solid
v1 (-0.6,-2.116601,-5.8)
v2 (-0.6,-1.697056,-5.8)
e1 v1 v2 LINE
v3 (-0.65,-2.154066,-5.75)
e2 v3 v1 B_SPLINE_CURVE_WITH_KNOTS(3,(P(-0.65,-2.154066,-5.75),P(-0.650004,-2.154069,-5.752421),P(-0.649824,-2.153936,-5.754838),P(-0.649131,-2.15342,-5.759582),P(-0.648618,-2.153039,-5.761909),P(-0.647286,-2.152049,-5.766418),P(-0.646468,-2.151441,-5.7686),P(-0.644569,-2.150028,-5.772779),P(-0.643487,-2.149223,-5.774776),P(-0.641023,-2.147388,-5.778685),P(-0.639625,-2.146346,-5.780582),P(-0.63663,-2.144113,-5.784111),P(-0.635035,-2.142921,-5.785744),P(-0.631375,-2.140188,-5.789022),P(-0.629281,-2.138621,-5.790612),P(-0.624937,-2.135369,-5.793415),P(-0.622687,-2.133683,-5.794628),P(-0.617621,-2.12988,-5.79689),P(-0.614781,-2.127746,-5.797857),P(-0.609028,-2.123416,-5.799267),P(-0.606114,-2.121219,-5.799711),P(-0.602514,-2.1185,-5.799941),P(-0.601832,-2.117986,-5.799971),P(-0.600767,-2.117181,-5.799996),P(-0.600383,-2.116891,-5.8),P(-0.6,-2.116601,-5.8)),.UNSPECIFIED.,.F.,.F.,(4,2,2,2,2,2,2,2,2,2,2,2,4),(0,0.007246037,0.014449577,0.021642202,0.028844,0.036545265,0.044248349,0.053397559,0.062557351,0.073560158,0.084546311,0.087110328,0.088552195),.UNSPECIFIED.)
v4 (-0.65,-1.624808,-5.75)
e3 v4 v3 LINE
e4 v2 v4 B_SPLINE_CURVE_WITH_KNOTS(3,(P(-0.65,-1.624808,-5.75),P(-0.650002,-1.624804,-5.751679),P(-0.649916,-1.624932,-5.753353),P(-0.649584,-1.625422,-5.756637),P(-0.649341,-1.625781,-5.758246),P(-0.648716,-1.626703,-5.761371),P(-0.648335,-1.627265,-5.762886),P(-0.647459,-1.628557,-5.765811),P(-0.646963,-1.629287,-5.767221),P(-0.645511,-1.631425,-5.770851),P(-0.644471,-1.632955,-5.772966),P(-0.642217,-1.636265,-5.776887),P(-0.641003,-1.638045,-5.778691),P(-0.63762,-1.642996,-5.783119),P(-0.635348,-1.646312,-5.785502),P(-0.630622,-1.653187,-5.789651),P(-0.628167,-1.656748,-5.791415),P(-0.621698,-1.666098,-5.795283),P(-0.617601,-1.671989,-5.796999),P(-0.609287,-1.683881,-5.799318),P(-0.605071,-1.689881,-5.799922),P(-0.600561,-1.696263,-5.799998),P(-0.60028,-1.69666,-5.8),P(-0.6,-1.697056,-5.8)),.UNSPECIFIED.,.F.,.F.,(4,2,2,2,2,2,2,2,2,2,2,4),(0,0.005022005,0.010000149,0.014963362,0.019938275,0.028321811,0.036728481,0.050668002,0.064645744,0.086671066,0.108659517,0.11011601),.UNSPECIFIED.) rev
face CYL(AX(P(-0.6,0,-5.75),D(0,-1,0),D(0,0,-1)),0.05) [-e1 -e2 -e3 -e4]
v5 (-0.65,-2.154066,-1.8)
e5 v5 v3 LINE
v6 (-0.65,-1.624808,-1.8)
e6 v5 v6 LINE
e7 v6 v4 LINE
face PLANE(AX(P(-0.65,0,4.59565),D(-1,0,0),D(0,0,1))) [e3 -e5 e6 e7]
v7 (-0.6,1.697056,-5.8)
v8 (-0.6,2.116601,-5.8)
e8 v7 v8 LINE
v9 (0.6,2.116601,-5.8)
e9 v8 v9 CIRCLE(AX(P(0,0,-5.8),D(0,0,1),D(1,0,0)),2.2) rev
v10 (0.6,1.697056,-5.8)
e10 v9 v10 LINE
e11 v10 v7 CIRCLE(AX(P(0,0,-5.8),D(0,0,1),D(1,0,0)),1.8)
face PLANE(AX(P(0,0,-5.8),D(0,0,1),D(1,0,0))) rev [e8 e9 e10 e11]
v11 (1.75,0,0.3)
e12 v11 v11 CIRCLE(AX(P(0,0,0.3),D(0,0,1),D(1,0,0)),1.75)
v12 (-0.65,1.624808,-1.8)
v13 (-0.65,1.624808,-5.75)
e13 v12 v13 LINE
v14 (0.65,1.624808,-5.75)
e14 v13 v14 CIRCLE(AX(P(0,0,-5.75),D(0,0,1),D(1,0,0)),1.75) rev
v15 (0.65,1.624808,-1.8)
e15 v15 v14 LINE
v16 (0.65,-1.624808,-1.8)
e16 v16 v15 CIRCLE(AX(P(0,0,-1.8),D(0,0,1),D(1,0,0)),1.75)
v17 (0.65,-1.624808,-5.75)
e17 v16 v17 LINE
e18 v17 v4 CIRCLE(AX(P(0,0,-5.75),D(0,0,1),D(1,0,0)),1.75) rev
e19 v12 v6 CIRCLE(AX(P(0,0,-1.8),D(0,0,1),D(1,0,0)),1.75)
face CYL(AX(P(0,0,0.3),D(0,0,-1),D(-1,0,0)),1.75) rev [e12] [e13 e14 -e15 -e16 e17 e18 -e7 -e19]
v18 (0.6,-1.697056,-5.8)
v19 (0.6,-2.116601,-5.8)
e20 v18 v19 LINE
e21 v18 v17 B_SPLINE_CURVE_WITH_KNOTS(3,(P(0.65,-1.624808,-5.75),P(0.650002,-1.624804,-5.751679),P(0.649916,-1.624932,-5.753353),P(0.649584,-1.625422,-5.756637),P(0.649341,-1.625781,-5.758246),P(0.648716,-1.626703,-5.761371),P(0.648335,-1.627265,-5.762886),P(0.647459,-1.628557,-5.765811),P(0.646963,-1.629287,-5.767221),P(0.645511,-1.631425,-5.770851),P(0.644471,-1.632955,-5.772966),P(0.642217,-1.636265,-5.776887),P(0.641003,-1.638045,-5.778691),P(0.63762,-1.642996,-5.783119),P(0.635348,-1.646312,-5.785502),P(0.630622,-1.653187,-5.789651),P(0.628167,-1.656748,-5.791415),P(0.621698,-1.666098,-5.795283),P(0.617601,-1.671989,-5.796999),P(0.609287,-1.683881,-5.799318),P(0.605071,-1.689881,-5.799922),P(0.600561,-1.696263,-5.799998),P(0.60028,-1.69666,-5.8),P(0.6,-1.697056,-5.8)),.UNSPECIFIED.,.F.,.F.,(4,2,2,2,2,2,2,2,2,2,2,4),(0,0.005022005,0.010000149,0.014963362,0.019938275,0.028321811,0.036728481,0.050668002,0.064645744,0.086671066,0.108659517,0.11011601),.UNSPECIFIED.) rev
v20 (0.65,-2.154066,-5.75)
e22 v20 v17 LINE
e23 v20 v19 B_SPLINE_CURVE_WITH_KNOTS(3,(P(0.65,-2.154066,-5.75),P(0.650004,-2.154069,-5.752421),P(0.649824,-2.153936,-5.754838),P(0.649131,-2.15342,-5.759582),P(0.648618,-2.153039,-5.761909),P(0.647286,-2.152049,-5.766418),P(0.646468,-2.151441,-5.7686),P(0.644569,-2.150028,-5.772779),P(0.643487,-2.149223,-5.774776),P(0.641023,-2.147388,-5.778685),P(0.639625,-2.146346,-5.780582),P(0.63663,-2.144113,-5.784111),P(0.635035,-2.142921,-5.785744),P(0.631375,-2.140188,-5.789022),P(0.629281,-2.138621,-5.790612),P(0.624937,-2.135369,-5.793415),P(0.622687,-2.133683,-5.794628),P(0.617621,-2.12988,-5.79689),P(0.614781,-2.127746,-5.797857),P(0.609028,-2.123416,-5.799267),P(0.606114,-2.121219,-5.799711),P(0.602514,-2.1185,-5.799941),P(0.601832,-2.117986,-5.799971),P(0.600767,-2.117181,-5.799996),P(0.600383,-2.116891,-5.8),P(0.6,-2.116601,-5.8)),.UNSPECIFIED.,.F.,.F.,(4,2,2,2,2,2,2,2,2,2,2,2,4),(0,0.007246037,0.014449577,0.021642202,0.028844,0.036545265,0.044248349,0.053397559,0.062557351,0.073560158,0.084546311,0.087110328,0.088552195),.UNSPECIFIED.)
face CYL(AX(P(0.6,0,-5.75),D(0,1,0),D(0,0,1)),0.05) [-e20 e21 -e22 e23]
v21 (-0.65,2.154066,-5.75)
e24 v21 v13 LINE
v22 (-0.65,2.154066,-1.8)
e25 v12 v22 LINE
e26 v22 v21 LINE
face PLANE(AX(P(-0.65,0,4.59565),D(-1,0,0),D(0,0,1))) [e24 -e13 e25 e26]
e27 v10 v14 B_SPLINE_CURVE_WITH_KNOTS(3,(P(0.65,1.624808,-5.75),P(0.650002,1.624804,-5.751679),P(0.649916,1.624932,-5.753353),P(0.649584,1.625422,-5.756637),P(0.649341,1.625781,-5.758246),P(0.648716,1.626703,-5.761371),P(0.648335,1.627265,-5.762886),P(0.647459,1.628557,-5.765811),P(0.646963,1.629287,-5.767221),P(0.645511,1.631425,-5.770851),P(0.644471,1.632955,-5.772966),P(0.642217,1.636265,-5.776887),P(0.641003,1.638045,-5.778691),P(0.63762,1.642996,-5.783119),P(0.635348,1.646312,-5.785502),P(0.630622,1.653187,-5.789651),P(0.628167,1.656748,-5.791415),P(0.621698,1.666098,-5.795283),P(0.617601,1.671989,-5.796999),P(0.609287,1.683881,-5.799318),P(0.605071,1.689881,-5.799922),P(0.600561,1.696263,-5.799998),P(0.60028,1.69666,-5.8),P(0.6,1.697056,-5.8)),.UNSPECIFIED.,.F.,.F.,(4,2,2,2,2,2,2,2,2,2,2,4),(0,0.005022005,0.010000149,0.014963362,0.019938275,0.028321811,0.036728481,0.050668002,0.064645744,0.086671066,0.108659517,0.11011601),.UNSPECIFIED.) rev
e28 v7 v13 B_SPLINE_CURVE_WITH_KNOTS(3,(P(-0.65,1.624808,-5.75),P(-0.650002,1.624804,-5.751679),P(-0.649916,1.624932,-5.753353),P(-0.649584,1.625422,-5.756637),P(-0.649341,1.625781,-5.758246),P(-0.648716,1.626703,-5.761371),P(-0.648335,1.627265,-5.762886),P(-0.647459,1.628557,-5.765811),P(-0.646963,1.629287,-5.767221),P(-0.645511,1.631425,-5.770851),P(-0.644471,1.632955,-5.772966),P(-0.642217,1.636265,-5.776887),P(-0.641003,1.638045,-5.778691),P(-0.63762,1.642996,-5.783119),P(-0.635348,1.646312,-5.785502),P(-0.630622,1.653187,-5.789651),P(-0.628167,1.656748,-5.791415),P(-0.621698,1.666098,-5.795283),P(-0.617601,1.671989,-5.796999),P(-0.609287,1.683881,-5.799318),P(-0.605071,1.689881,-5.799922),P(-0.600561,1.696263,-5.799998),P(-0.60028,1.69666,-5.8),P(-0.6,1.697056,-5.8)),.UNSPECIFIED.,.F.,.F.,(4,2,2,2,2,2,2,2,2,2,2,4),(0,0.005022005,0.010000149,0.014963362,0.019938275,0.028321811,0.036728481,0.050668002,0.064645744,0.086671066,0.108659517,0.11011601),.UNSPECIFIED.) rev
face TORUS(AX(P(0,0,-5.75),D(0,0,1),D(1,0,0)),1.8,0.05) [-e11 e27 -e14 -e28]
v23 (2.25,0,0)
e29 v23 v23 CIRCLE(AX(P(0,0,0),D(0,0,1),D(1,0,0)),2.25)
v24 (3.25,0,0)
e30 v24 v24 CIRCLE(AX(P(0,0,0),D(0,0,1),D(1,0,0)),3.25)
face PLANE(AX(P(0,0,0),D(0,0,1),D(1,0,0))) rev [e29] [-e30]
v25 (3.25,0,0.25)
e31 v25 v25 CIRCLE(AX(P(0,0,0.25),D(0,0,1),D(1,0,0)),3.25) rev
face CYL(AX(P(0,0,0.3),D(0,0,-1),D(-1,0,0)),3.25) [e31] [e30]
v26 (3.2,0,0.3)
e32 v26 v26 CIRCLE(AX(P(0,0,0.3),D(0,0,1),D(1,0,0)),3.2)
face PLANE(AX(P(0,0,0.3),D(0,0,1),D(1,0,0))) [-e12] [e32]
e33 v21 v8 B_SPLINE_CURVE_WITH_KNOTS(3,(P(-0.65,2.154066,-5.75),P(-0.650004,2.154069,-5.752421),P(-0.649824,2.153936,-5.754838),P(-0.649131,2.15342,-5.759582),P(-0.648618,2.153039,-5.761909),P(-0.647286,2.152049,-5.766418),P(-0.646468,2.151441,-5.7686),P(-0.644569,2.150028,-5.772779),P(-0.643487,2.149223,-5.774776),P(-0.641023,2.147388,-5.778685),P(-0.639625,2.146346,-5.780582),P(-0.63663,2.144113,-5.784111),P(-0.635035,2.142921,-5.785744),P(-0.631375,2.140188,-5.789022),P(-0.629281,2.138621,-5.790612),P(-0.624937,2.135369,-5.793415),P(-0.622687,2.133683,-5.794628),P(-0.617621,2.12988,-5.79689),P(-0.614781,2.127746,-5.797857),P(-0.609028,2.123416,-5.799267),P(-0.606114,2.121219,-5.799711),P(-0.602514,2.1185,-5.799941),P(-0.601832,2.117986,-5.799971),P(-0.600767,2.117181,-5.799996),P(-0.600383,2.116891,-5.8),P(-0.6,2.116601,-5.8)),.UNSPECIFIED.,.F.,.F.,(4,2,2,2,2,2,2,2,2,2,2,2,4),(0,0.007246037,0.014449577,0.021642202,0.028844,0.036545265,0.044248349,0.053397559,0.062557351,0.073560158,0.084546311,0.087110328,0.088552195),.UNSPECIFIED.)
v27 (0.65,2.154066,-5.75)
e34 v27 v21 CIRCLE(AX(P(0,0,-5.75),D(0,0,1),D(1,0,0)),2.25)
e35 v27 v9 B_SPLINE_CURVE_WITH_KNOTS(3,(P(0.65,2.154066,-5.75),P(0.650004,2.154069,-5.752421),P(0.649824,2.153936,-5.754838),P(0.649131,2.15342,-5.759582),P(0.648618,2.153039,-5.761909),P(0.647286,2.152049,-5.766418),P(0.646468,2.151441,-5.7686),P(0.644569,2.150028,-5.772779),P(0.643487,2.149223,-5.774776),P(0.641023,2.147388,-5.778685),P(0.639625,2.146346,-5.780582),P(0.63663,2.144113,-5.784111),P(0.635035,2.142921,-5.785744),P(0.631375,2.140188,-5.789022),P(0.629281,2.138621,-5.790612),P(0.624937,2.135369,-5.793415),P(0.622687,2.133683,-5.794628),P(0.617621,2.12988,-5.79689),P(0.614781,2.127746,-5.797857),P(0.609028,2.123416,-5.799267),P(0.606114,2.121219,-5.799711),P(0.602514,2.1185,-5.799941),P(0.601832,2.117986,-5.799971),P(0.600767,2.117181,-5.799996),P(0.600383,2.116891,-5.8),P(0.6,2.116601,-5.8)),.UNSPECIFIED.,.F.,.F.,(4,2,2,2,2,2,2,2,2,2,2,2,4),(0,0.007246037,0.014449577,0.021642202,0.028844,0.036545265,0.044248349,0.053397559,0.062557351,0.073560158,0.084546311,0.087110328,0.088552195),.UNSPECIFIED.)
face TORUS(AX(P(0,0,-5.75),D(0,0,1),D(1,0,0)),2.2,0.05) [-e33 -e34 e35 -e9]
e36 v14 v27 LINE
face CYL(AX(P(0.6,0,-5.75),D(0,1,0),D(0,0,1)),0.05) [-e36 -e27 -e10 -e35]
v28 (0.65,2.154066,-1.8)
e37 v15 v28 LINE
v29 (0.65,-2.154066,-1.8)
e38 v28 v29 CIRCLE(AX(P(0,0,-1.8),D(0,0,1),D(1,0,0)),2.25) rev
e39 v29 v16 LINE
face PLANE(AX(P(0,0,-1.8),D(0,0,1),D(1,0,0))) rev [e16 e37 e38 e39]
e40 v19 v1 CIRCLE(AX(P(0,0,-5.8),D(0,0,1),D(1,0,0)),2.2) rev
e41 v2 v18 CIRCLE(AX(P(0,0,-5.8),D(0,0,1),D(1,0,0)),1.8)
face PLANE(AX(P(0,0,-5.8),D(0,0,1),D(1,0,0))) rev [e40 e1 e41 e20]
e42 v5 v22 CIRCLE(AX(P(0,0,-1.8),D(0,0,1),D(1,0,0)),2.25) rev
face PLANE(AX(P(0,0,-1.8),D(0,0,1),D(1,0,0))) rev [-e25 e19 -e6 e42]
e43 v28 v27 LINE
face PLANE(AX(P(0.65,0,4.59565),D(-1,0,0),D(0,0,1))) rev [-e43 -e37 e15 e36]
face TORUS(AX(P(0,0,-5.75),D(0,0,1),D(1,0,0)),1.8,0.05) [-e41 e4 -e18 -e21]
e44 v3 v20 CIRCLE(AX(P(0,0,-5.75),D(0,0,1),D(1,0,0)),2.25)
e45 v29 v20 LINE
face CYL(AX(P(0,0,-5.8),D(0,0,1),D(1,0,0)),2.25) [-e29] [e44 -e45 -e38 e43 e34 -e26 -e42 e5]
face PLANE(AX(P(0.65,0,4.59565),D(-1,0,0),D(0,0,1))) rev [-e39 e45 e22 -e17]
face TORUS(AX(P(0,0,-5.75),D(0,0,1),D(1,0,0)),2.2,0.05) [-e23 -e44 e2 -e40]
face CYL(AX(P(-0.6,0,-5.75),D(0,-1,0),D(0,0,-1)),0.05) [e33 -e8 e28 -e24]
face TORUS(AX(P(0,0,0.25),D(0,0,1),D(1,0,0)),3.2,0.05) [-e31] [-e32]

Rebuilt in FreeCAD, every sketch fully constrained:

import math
import FreeCAD as App
import Part
import Sketcher
from FreeCAD import Vector


def edges_at(feature, points):
    """Names of the edges that pass closest to the given points."""
    edges = feature.Shape.Edges
    near = lambda p: min(range(len(edges)), key=lambda i: edges[i].distToShape(Part.Vertex(*p))[0])
    return sorted({f"Edge{near(p) + 1}" for p in points})

doc = App.newDocument("Part")
body = doc.addObject("PartDesign::Body", "Body")

sketch1 = body.newObject("Sketcher::SketchObject", "Sketch")
sketch1.AttachmentSupport = (doc.getObject("XY_Plane"), [""])
sketch1.MapMode = "FlatFace"
sketch1.addGeometry([
    Part.Circle(Vector(0, 0, 0), Vector(0, 0, 1), 3.25),
    Part.Circle(Vector(0, 0, 0), Vector(0, 0, 1), 1.75),
], False)
sketch1.addConstraint([
    Sketcher.Constraint("Coincident", 0, 3, -1, 1),
    Sketcher.Constraint("Coincident", 1, 3, -1, 1),
    Sketcher.Constraint("Diameter", 0, 6.5),
    Sketcher.Constraint("Diameter", 1, 3.5),
])
pad1 = body.newObject("PartDesign::Pad", "Pad")
pad1.Profile = sketch1
pad1.Length = 0.3

sketch2 = body.newObject("Sketcher::SketchObject", "Sketch001")
sketch2.AttachmentSupport = (doc.getObject("XY_Plane"), [""])
sketch2.MapMode = "FlatFace"
sketch2.addGeometry([
    Part.Circle(Vector(0, 0, 0), Vector(0, 0, 1), 2.25),
    Part.Circle(Vector(0, 0, 0), Vector(0, 0, 1), 1.75),
], False)
sketch2.addConstraint([
    Sketcher.Constraint("Coincident", 0, 3, -1, 1),
    Sketcher.Constraint("Coincident", 1, 3, -1, 1),
    Sketcher.Constraint("Diameter", 0, 4.5),
    Sketcher.Constraint("Diameter", 1, 3.5),
])
pad2 = body.newObject("PartDesign::Pad", "Pad001")
pad2.Profile = sketch2
pad2.Length = 5.8
pad2.Reversed = True

sketch3 = body.newObject("Sketcher::SketchObject", "Sketch002")
sketch3.AttachmentSupport = (doc.getObject("XY_Plane"), [""])
sketch3.MapMode = "FlatFace"
sketch3.AttachmentOffset = App.Placement(Vector(0, 0, -5.8), App.Rotation())
sketch3.addGeometry([
    Part.ArcOfCircle(Part.Circle(Vector(0, 0, 0), Vector(0, 0, 1), 2.25), math.radians(-73.208553), math.radians(73.208553)),
    Part.LineSegment(Vector(0.65, -2.154066, 0), Vector(0.65, -1.624808, 0)),
    Part.ArcOfCircle(Part.Circle(Vector(0, 0, 0), Vector(0, 0, 1), 1.75), math.radians(-68.196252), math.radians(68.196252)),
    Part.LineSegment(Vector(0.65, 1.624808, 0), Vector(0.65, 2.154066, 0)),
    Part.LineSegment(Vector(-0.65, -1.624808, 0), Vector(-0.65, -2.154066, 0)),
    Part.ArcOfCircle(Part.Circle(Vector(0, 0, 0), Vector(0, 0, 1), 2.25), math.radians(-180), math.radians(-106.791447)),
    Part.ArcOfCircle(Part.Circle(Vector(0, 0, 0), Vector(0, 0, 1), 2.25), math.radians(106.791447), math.radians(180)),
    Part.LineSegment(Vector(-0.65, 2.154066, 0), Vector(-0.65, 1.624808, 0)),
    Part.ArcOfCircle(Part.Circle(Vector(0, 0, 0), Vector(0, 0, 1), 1.75), math.radians(111.803748), math.radians(180)),
    Part.ArcOfCircle(Part.Circle(Vector(0, 0, 0), Vector(0, 0, 1), 1.75), math.radians(180), math.radians(248.196252)),
], False)
sketch3.addConstraint([
    Sketcher.Constraint("Coincident", 0, 1, 1, 1),
    Sketcher.Constraint("Coincident", 1, 2, 2, 1),
    Sketcher.Constraint("Coincident", 2, 2, 3, 1),
    Sketcher.Constraint("Coincident", 3, 2, 0, 2),
    Sketcher.Constraint("Coincident", 4, 2, 5, 2),
    Sketcher.Constraint("Tangent", 5, 1, 6, 2),
    Sketcher.Constraint("Coincident", 6, 1, 7, 1),
    Sketcher.Constraint("Coincident", 7, 2, 8, 1),
    Sketcher.Constraint("Tangent", 8, 2, 9, 1),
    Sketcher.Constraint("Coincident", 9, 2, 4, 1),
    Sketcher.Constraint("Vertical", 1),
    Sketcher.Constraint("Vertical", 3),
    Sketcher.Constraint("Vertical", 4),
    Sketcher.Constraint("Vertical", 7),
    Sketcher.Constraint("Coincident", 0, 3, -1, 1),
    Sketcher.Constraint("Coincident", 2, 3, -1, 1),
    Sketcher.Constraint("Coincident", 5, 3, -1, 1),
    Sketcher.Constraint("Coincident", 8, 3, -1, 1),
    Sketcher.Constraint("Equal", 0, 5),
    Sketcher.Constraint("Equal", 5, 6),
    Sketcher.Constraint("Equal", 2, 8),
    Sketcher.Constraint("Equal", 8, 9),
    Sketcher.Constraint("PointOnObject", 5, 1, -1),
    Sketcher.Constraint("PointOnObject", 8, 2, -1),
    Sketcher.Constraint("Horizontal", 0, 1, 4, 2),
    Sketcher.Constraint("Horizontal", 3, 2, 6, 1),
    Sketcher.Constraint("Vertical", 1, 2, 2, 2),
    Sketcher.Constraint("Radius", 0, 2.25),
    Sketcher.Constraint("Radius", 2, 1.75),
    Sketcher.Constraint("DistanceX", 4, 2, 0, 1, 1.3),
])
pocket1 = body.newObject("PartDesign::Pocket", "Pocket")
pocket1.Profile = sketch3
pocket1.Length = 4
pocket1.Reversed = True
doc.recompute()

fillet = body.newObject("PartDesign::Fillet", "Fillet")
fillet.Base = (pocket1, edges_at(pocket1, [
    (0, 1.75, -5.8),
    (0.65, -1.889, -5.8),
    (0.65, 1.889, -5.8),
    (0, -1.75, -5.8),
    (0, -2.25, -5.8),
    (-0.65, 1.889, -5.8),
    (-0.65, -1.889, -5.8),
    (-3.25, 0, 0.3),
    (0, 2.25, -5.8),
]))
fillet.Radius = 0.05

doc.recompute()
